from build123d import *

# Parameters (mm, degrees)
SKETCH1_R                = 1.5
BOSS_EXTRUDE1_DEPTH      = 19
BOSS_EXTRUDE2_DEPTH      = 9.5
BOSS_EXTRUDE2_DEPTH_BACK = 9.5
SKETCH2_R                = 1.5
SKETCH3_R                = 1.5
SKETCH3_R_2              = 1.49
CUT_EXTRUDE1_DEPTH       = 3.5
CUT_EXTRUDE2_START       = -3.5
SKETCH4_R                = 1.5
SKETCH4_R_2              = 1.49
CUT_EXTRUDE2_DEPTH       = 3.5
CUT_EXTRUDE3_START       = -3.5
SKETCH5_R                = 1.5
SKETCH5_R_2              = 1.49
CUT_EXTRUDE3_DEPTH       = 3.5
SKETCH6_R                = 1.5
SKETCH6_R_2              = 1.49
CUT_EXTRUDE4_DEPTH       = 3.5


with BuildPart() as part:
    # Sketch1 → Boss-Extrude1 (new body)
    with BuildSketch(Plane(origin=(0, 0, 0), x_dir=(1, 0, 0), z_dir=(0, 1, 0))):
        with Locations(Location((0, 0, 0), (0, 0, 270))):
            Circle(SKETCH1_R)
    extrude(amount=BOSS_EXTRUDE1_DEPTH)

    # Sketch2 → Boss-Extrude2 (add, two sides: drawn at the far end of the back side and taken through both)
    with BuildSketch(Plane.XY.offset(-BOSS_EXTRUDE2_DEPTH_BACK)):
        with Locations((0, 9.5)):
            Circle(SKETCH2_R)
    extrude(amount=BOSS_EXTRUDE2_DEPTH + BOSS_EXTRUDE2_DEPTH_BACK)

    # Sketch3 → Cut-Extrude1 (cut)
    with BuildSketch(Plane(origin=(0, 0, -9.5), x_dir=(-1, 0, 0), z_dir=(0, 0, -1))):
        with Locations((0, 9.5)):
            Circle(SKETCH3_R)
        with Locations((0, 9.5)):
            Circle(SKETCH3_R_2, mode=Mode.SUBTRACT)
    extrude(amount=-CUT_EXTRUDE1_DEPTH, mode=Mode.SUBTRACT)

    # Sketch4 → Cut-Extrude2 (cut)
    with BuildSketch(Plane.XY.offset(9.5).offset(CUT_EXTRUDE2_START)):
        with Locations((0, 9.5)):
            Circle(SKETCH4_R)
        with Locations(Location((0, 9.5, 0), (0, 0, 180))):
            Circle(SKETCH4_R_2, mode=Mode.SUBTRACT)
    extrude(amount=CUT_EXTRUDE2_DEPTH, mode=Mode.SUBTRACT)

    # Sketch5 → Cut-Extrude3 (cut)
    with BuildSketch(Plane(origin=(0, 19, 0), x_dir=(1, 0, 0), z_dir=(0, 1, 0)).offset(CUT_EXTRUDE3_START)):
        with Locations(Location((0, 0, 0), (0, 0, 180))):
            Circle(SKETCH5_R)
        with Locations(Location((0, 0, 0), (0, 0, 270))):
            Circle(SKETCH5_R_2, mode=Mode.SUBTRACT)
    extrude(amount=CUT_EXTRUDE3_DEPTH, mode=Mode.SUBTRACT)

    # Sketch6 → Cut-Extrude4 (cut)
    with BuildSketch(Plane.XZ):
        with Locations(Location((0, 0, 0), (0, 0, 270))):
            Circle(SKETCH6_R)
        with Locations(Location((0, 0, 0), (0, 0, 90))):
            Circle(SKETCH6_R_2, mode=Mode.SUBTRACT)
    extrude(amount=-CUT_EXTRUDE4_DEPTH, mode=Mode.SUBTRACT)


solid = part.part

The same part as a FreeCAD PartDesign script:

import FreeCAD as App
import Part
import Sketcher
Q = App.Units.Quantity

doc = App.newDocument("Part")
params = doc.addObject("Spreadsheet::Sheet", "Params")
for row, (alias, value) in enumerate([
    ("sketch1_diameter", "3 mm"),
    ("pad1_length", "19 mm"),
    ("sketch2_diameter", "3 mm"),
    ("pad2_length", "9.5 mm"),
    ("pad2_length2", "9.5 mm"),
    ("sketch3_diameter", "3 mm"),
    ("sketch3_diameter2", "2.98 mm"),
    ("pocket1_length", "3.5 mm"),
    ("sketch4_diameter", "3 mm"),
    ("sketch4_diameter2", "2.98 mm"),
    ("pocket2_length", "3.5 mm"),
    ("sketch5_diameter", "3 mm"),
    ("sketch5_diameter2", "2.98 mm"),
    ("pocket3_length", "3.5 mm"),
    ("sketch6_diameter", "3 mm"),
    ("sketch6_diameter2", "2.98 mm"),
    ("pocket4_length", "3.5 mm"),
], start=1):
    params.set(f"A{row}", alias)
    params.set(f"B{row}", "=" + value)
    params.setAlias(f"B{row}", alias)

body = doc.addObject("PartDesign::Body", "Body")

# Sketch on XZ plane
sketch1 = body.newObject("Sketcher::SketchObject", "Sketch")
sketch1.AttachmentSupport = (doc.getObject("XZ_Plane"), [""])
sketch1.MapMode = "FlatFace"
sketch1.addGeometry(Part.Circle(App.Vector(0, 0, 0), App.Vector(0, 0, 1), 1.5), False)
sketch1.addConstraint([
    Sketcher.Constraint("Coincident", 0, 3, -1, 1),
    Sketcher.Constraint("Diameter", 0, Q("3 mm")),
])
sketch1.setExpression("Constraints[1]", "Params.sketch1_diameter")
pad1 = body.newObject("PartDesign::Pad", "Pad")
pad1.Profile = sketch1
pad1.setExpression("Length", "Params.pad1_length")
pad1.Reversed = True

# Sketch on XY plane
sketch2 = body.newObject("Sketcher::SketchObject", "Sketch001")
sketch2.AttachmentSupport = (doc.getObject("XY_Plane"), [""])
sketch2.MapMode = "FlatFace"
sketch2.addGeometry(Part.Circle(App.Vector(0, 9.5, 0), App.Vector(0, 0, 1), 1.5), False)
sketch2.addConstraint([
    Sketcher.Constraint("PointOnObject", 0, 3, -2),
    Sketcher.Constraint("Diameter", 0, Q("3 mm")),
    Sketcher.Constraint("DistanceY", -1, 1, 0, 3, Q("9.5 mm")),
])
sketch2.setExpression("Constraints[1]", "Params.sketch2_diameter")
pad2 = body.newObject("PartDesign::Pad", "Pad001")
pad2.Profile = sketch2
pad2.Type = "TwoLengths"
pad2.setExpression("Length", "Params.pad2_length")
pad2.setExpression("Length2", "Params.pad2_length2")

# Sketch on XY plane
sketch3 = body.newObject("Sketcher::SketchObject", "Sketch002")
sketch3.AttachmentSupport = (doc.getObject("XY_Plane"), [""])
sketch3.MapMode = "FlatFace"
sketch3.AttachmentOffset = App.Placement(App.Vector(0, 0, -9.5), App.Rotation())
sketch3.addGeometry([
    Part.Circle(App.Vector(0, 9.5, 0), App.Vector(0, 0, 1), 1.5),
    Part.Circle(App.Vector(0, 9.5, 0), App.Vector(0, 0, 1), 1.5),
], False)
sketch3.addConstraint([
    Sketcher.Constraint("Coincident", 1, 3, 0, 3),
    Sketcher.Constraint("PointOnObject", 0, 3, -2),
    Sketcher.Constraint("Diameter", 0, Q("3 mm")),
    Sketcher.Constraint("Diameter", 1, Q("2.98 mm")),
    Sketcher.Constraint("DistanceY", -1, 1, 0, 3, Q("9.5 mm")),
])
sketch3.setExpression("Constraints[2]", "Params.sketch3_diameter")
sketch3.setExpression("Constraints[3]", "Params.sketch3_diameter2")
pocket1 = body.newObject("PartDesign::Pocket", "Pocket")
pocket1.Profile = sketch3
pocket1.setExpression("Length", "Params.pocket1_length")
pocket1.Reversed = True

# Sketch on XY plane
sketch4 = body.newObject("Sketcher::SketchObject", "Sketch003")
sketch4.AttachmentSupport = (doc.getObject("XY_Plane"), [""])
sketch4.MapMode = "FlatFace"
sketch4.AttachmentOffset = App.Placement(App.Vector(0, 0, 6), App.Rotation())
sketch4.addGeometry([
    Part.Circle(App.Vector(0, 9.5, 0), App.Vector(0, 0, 1), 1.5),
    Part.Circle(App.Vector(0, 9.5, 0), App.Vector(0, 0, 1), 1.5),
], False)
sketch4.addConstraint([
    Sketcher.Constraint("Coincident", 1, 3, 0, 3),
    Sketcher.Constraint("PointOnObject", 0, 3, -2),
    Sketcher.Constraint("Diameter", 0, Q("3 mm")),
    Sketcher.Constraint("Diameter", 1, Q("2.98 mm")),
    Sketcher.Constraint("DistanceY", -1, 1, 0, 3, Q("9.5 mm")),
])
sketch4.setExpression("Constraints[2]", "Params.sketch4_diameter")
sketch4.setExpression("Constraints[3]", "Params.sketch4_diameter2")
pocket2 = body.newObject("PartDesign::Pocket", "Pocket001")
pocket2.Profile = sketch4
pocket2.setExpression("Length", "Params.pocket2_length")
pocket2.Reversed = True

# Sketch on XZ plane
sketch5 = body.newObject("Sketcher::SketchObject", "Sketch004")
sketch5.AttachmentSupport = (doc.getObject("XZ_Plane"), [""])
sketch5.MapMode = "FlatFace"
sketch5.AttachmentOffset = App.Placement(App.Vector(0, 0, -15.5), App.Rotation())
sketch5.addGeometry([
    Part.Circle(App.Vector(0, 0, 0), App.Vector(0, 0, 1), 1.5),
    Part.Circle(App.Vector(0, 0, 0), App.Vector(0, 0, 1), 1.5),
], False)
sketch5.addConstraint([
    Sketcher.Constraint("Coincident", 0, 3, -1, 1),
    Sketcher.Constraint("Coincident", 1, 3, -1, 1),
    Sketcher.Constraint("Diameter", 0, Q("3 mm")),
    Sketcher.Constraint("Diameter", 1, Q("2.98 mm")),
])
sketch5.setExpression("Constraints[2]", "Params.sketch5_diameter")
sketch5.setExpression("Constraints[3]", "Params.sketch5_diameter2")
pocket3 = body.newObject("PartDesign::Pocket", "Pocket002")
pocket3.Profile = sketch5
pocket3.setExpression("Length", "Params.pocket3_length")

# Sketch on XZ plane
sketch6 = body.newObject("Sketcher::SketchObject", "Sketch005")
sketch6.AttachmentSupport = (doc.getObject("XZ_Plane"), [""])
sketch6.MapMode = "FlatFace"
sketch6.addGeometry([
    Part.Circle(App.Vector(0, 0, 0), App.Vector(0, 0, 1), 1.5),
    Part.Circle(App.Vector(0, 0, 0), App.Vector(0, 0, 1), 1.5),
], False)
sketch6.addConstraint([
    Sketcher.Constraint("Coincident", 0, 3, -1, 1),
    Sketcher.Constraint("Coincident", 1, 3, -1, 1),
    Sketcher.Constraint("Diameter", 0, Q("3 mm")),
    Sketcher.Constraint("Diameter", 1, Q("2.98 mm")),
])
sketch6.setExpression("Constraints[2]", "Params.sketch6_diameter")
sketch6.setExpression("Constraints[3]", "Params.sketch6_diameter2")
pocket4 = body.newObject("PartDesign::Pocket", "Pocket003")
pocket4.Profile = sketch6
pocket4.setExpression("Length", "Params.pocket4_length")

doc.recompute()
